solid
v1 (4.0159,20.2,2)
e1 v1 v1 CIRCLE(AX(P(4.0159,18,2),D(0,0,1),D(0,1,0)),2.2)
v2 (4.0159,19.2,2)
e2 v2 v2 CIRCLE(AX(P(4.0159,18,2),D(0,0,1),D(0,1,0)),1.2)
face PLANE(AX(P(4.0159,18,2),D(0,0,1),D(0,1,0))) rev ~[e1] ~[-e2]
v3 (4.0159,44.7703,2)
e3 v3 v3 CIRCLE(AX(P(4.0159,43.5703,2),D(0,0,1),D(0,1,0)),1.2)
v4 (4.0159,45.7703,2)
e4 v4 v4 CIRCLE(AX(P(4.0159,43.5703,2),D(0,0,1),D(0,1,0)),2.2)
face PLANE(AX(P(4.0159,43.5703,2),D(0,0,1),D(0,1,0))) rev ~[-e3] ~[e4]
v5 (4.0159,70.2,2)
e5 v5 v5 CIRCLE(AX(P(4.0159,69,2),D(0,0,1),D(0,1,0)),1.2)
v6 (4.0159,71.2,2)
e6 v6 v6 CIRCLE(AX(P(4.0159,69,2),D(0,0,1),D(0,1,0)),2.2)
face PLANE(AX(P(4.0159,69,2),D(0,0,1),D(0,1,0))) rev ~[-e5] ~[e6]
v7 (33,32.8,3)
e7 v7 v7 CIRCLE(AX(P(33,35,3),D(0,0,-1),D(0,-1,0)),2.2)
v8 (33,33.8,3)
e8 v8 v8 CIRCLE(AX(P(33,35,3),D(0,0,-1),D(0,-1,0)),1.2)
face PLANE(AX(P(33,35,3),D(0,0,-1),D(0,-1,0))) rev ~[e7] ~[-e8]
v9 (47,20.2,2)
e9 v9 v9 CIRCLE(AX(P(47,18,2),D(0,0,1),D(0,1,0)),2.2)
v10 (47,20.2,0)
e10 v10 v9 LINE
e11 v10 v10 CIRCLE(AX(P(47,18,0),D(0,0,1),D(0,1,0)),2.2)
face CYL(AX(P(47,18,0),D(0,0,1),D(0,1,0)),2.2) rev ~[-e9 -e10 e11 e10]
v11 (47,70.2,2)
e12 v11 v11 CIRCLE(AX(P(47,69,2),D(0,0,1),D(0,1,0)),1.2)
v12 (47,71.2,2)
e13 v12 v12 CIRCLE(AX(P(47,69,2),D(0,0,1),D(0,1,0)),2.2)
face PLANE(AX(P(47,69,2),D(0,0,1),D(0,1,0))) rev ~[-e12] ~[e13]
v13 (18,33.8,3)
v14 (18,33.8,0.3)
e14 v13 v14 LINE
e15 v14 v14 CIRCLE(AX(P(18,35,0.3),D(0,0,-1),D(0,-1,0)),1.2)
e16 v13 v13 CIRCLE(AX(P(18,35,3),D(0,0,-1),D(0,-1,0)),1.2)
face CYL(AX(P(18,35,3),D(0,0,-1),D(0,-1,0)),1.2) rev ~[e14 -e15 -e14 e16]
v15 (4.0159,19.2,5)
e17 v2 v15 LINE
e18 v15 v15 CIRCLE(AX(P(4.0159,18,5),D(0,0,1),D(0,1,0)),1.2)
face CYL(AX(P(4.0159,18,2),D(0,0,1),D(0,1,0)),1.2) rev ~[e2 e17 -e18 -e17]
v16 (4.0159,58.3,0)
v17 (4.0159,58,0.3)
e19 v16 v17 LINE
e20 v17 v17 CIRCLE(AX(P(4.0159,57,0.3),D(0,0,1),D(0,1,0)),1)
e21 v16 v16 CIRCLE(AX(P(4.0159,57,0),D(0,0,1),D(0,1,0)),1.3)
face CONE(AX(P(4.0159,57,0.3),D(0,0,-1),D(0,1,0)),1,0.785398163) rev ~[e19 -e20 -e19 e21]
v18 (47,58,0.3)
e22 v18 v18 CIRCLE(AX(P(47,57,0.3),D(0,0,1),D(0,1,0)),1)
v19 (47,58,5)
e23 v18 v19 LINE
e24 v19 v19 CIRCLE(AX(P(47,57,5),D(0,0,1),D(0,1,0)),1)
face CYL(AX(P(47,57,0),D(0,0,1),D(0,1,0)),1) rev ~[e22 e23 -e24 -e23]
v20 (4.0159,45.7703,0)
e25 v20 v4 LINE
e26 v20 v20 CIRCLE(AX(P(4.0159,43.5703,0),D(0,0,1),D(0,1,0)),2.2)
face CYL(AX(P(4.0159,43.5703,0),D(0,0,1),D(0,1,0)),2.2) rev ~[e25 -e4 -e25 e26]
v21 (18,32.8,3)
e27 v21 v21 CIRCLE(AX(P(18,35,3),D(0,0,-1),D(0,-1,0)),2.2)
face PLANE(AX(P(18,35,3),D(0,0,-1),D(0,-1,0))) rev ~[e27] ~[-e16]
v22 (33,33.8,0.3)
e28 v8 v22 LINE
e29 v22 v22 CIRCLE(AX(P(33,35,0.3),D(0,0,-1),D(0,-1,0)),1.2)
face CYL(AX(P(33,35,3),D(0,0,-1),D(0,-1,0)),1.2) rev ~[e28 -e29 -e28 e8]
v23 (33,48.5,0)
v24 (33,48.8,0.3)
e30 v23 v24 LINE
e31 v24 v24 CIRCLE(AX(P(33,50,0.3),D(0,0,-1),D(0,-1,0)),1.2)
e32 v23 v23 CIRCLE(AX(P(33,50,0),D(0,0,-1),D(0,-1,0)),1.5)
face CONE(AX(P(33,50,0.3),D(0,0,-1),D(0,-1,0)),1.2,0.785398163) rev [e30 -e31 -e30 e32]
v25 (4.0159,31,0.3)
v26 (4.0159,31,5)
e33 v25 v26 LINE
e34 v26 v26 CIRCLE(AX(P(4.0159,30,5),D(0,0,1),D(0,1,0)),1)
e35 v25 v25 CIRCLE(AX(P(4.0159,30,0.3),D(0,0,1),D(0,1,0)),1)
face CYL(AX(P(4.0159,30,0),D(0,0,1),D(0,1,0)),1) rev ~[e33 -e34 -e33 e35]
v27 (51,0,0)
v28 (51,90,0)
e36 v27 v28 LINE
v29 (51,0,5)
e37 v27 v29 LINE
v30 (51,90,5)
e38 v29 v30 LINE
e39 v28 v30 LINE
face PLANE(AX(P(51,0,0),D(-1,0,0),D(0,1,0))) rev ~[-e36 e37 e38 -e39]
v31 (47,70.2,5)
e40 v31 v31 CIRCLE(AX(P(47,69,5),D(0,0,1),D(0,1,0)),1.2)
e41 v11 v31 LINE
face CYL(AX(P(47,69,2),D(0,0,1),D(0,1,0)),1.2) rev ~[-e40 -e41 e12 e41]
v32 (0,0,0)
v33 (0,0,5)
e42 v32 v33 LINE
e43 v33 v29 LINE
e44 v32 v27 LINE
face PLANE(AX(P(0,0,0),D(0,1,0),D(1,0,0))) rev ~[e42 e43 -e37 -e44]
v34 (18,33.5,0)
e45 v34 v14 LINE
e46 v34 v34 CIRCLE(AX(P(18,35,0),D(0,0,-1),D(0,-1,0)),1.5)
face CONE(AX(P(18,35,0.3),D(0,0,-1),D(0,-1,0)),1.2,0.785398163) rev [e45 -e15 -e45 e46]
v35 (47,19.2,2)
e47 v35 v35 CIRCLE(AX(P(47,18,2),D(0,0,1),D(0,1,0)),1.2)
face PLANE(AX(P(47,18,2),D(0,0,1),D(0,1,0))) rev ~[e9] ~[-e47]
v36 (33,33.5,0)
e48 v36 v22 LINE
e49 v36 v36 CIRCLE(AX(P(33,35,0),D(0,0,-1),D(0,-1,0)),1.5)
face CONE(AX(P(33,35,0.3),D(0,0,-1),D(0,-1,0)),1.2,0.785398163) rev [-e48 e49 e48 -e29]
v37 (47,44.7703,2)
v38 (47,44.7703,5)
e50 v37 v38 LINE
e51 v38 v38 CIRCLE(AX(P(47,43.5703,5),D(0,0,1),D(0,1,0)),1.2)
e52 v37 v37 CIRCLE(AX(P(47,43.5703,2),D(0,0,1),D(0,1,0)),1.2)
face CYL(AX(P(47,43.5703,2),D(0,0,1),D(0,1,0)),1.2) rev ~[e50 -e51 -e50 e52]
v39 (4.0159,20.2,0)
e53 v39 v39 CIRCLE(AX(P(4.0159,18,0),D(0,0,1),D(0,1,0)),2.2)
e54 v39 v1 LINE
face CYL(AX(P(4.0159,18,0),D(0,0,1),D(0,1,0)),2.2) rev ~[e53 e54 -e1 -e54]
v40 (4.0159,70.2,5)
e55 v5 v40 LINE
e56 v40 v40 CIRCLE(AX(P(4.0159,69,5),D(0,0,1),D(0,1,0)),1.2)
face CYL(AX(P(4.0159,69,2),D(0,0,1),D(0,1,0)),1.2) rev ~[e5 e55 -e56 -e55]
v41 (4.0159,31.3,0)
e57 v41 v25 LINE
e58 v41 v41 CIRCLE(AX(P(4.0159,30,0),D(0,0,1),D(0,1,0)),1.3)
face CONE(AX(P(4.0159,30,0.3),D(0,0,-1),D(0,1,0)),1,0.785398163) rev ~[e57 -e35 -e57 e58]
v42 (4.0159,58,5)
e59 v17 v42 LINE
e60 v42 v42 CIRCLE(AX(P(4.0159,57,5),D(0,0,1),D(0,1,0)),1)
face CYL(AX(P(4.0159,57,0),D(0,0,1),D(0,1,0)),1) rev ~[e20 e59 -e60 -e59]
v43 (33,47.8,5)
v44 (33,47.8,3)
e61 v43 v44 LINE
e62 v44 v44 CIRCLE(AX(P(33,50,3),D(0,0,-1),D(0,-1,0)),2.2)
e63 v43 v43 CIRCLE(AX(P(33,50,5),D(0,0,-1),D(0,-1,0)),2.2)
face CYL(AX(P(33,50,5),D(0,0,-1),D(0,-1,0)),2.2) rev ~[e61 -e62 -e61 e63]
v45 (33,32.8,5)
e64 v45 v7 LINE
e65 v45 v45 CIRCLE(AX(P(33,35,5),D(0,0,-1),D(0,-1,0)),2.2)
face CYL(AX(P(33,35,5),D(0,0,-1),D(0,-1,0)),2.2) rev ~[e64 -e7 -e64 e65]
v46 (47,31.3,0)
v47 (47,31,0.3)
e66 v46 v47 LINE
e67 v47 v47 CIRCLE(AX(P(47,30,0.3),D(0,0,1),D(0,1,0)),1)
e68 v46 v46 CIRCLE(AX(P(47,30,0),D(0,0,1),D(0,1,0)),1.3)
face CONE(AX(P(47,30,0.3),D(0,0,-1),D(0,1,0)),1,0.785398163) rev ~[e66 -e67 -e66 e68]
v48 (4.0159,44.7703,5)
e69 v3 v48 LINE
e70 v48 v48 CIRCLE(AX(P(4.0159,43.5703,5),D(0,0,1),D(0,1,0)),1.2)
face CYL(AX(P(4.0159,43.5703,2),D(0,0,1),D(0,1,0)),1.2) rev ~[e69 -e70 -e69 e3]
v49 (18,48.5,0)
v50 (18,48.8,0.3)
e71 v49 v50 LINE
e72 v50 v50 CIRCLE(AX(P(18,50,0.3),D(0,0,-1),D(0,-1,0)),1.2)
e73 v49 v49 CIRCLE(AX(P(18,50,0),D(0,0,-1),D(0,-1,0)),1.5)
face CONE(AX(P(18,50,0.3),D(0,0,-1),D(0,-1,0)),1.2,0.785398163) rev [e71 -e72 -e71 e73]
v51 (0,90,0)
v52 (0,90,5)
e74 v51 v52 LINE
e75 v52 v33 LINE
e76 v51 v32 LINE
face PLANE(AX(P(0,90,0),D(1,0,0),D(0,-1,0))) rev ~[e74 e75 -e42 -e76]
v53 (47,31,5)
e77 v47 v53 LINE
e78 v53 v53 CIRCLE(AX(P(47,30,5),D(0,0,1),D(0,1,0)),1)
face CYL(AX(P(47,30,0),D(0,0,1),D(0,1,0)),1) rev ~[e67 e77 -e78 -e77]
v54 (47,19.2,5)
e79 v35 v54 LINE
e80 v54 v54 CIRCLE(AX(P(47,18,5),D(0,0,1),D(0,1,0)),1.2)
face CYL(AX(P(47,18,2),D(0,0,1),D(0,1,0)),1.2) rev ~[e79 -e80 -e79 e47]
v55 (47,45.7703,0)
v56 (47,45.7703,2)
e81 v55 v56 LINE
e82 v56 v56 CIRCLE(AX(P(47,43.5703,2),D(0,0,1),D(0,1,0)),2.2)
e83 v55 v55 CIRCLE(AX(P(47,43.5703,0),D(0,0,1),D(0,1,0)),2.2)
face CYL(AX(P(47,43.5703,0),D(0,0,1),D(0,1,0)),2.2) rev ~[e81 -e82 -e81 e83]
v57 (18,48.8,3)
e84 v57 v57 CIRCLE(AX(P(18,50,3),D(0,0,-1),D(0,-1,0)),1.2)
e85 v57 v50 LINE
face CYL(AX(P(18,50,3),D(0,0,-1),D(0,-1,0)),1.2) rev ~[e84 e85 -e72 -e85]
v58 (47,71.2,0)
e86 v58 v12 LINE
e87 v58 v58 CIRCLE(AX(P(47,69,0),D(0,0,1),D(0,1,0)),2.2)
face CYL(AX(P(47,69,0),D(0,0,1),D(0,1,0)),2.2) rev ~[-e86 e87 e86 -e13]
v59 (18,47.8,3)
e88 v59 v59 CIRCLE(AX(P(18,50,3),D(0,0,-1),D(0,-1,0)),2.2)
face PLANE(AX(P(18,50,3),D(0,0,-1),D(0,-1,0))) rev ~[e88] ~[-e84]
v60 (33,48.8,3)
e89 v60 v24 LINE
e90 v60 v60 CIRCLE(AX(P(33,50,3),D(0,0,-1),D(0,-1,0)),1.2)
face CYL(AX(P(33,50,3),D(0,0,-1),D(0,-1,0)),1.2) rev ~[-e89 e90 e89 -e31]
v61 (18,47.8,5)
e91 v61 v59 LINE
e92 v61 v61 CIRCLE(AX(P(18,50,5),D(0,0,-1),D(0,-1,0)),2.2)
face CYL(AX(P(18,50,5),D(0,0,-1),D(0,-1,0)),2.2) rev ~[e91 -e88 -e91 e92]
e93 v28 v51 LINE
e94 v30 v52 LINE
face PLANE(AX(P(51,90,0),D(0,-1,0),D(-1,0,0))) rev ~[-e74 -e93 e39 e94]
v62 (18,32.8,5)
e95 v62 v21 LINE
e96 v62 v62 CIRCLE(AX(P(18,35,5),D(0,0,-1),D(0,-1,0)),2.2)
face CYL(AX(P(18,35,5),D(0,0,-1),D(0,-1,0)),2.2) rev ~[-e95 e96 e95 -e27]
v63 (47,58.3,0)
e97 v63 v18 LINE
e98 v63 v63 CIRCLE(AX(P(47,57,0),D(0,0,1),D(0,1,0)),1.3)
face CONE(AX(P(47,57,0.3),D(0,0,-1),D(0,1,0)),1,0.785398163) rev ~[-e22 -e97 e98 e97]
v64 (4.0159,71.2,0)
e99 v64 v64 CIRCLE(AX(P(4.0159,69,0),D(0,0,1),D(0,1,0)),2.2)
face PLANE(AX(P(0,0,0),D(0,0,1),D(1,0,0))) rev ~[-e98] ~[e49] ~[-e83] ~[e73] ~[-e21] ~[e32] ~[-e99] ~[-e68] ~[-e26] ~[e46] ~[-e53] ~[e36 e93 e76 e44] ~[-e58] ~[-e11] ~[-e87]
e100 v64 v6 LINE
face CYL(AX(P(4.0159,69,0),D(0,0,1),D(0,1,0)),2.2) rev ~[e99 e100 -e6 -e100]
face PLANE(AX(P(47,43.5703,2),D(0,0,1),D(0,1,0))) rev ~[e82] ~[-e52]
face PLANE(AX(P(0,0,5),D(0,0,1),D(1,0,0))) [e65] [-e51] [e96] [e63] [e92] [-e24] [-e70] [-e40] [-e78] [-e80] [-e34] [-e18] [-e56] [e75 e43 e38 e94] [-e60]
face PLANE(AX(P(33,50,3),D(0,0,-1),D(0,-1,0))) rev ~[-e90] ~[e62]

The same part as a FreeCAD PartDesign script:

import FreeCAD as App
import Part
import Sketcher

V = App.Vector


def edges_at(feature, points):
    """Names of the edges that pass closest to the given points."""
    edges = feature.Shape.Edges
    near = lambda p: min(range(len(edges)), key=lambda i: edges[i].distToShape(Part.Vertex(*p))[0])
    return sorted({f"Edge{near(p) + 1}" for p in points})

doc = App.newDocument("Part")
body = doc.addObject("PartDesign::Body", "Body")

# Sketch on XY plane
sketch1 = body.newObject("Sketcher::SketchObject", "Sketch")
sketch1.AttachmentSupport = (doc.getObject("XY_Plane"), [""])
sketch1.MapMode = "FlatFace"
sketch1.addGeometry(Part.LineSegment(V(0, 90, 0), V(0, 0, 0)), False)
sketch1.addGeometry(Part.LineSegment(V(0, 0, 0), V(51, 0, 0)), False)
sketch1.addGeometry(Part.LineSegment(V(51, 0, 0), V(51, 90, 0)), False)
sketch1.addGeometry(Part.LineSegment(V(51, 90, 0), V(0, 90, 0)), False)
sketch1.addConstraint(Sketcher.Constraint("Coincident", 0, 2, 1, 1))
sketch1.addConstraint(Sketcher.Constraint("Coincident", 1, 2, 2, 1))
sketch1.addConstraint(Sketcher.Constraint("Coincident", 2, 2, 3, 1))
sketch1.addConstraint(Sketcher.Constraint("Coincident", 3, 2, 0, 1))
sketch1.addConstraint(Sketcher.Constraint("Vertical", 0))
sketch1.addConstraint(Sketcher.Constraint("Horizontal", 1))
sketch1.addConstraint(Sketcher.Constraint("Vertical", 2))
sketch1.addConstraint(Sketcher.Constraint("Horizontal", 3))
sketch1.addConstraint(Sketcher.Constraint("Coincident", 0, 2, -1, 1))
sketch1.addConstraint(Sketcher.Constraint("DistanceX", 1, 1, 1, 2, 51.0))
sketch1.addConstraint(Sketcher.Constraint("DistanceY", 0, 2, 0, 1, 90.0))
pad1 = body.newObject("PartDesign::Pad", "Pad")
pad1.Profile = sketch1
pad1.Length = 5

# Sketch on XY plane
sketch2 = body.newObject("Sketcher::SketchObject", "Sketch001")
sketch2.AttachmentSupport = (doc.getObject("XY_Plane"), [""])
sketch2.MapMode = "FlatFace"
sketch2.addGeometry(Part.Circle(V(4, 69, 0), V(0, 0, 1), 1.2), False)
sketch2.addGeometry(Part.Circle(V(4, 43.6, 0), V(0, 0, 1), 1.2), False)
sketch2.addGeometry(Part.Circle(V(4, 18, 0), V(0, 0, 1), 1.2), False)
sketch2.addGeometry(Part.Circle(V(47, 18, 0), V(0, 0, 1), 1.2), False)
sketch2.addGeometry(Part.Circle(V(47, 43.6, 0), V(0, 0, 1), 1.2), False)
sketch2.addGeometry(Part.Circle(V(47, 69, 0), V(0, 0, 1), 1.2), False)
sketch2.addConstraint(Sketcher.Constraint("Equal", 0, 1))
sketch2.addConstraint(Sketcher.Constraint("Equal", 1, 2))
sketch2.addConstraint(Sketcher.Constraint("Equal", 2, 3))
sketch2.addConstraint(Sketcher.Constraint("Equal", 3, 4))
sketch2.addConstraint(Sketcher.Constraint("Equal", 4, 5))
sketch2.addConstraint(Sketcher.Constraint("Horizontal", 2, 3, 3, 3))
sketch2.addConstraint(Sketcher.Constraint("Horizontal", 1, 3, 4, 3))
sketch2.addConstraint(Sketcher.Constraint("Horizontal", 0, 3, 5, 3))
sketch2.addConstraint(Sketcher.Constraint("Vertical", 0, 3, 1, 3))
sketch2.addConstraint(Sketcher.Constraint("Vertical", 1, 3, 2, 3))
sketch2.addConstraint(Sketcher.Constraint("Vertical", 3, 3, 4, 3))
sketch2.addConstraint(Sketcher.Constraint("Vertical", 4, 3, 5, 3))
sketch2.addConstraint(Sketcher.Constraint("Diameter", 0, 2.4))
sketch2.addConstraint(Sketcher.Constraint("DistanceY", -1, 1, 0, 3, 69.0))
sketch2.addConstraint(Sketcher.Constraint("DistanceY", -1, 1, 2, 3, 18.0))
sketch2.addConstraint(Sketcher.Constraint("DistanceX", -1, 1, 3, 3, 47.0))
sketch2.addConstraint(Sketcher.Constraint("DistanceX", -1, 1, 0, 3, 4.016))
sketch2.addConstraint(Sketcher.Constraint("DistanceY", -1, 1, 1, 3, 43.5703))
doc.recompute()
hole = body.newObject("PartDesign::Hole", "Hole")
hole.Profile = sketch2
hole.ThreadType = "None"
hole.Diameter = 2.4
hole.DepthType = "ThroughAll"
hole.HoleCutType = "Counterbore"
hole.HoleCutDiameter = 4.4
hole.HoleCutDepth = 2
hole.Reversed = True

# Sketch on XY plane
sketch3 = body.newObject("Sketcher::SketchObject", "Sketch002")
sketch3.AttachmentSupport = (doc.getObject("XY_Plane"), [""])
sketch3.MapMode = "FlatFace"
sketch3.AttachmentOffset = App.Placement(V(0, 0, 5), App.Rotation())
sketch3.addGeometry(Part.Circle(V(33, 50, 0), V(0, 0, 1), 1.2), False)
sketch3.addGeometry(Part.Circle(V(18, 50, 0), V(0, 0, 1), 1.2), False)
sketch3.addGeometry(Part.Circle(V(18, 35, 0), V(0, 0, 1), 1.2), False)
sketch3.addGeometry(Part.Circle(V(33, 35, 0), V(0, 0, 1), 1.2), False)
sketch3.addConstraint(Sketcher.Constraint("Equal", 0, 1))
sketch3.addConstraint(Sketcher.Constraint("Equal", 1, 2))
sketch3.addConstraint(Sketcher.Constraint("Equal", 2, 3))
sketch3.addConstraint(Sketcher.Constraint("Horizontal", 0, 3, 1, 3))
sketch3.addConstraint(Sketcher.Constraint("Horizontal", 2, 3, 3, 3))
sketch3.addConstraint(Sketcher.Constraint("Vertical", 1, 3, 2, 3))
sketch3.addConstraint(Sketcher.Constraint("Vertical", 0, 3, 3, 3))
sketch3.addConstraint(Sketcher.Constraint("Diameter", 0, 2.4))
sketch3.addConstraint(Sketcher.Constraint("DistanceX", -1, 1, 0, 3, 33.0))
sketch3.addConstraint(Sketcher.Constraint("DistanceY", -1, 1, 0, 3, 50.0))
sketch3.addConstraint(Sketcher.Constraint("DistanceX", -1, 1, 1, 3, 18.0))
sketch3.addConstraint(Sketcher.Constraint("DistanceY", -1, 1, 2, 3, 35.0))
doc.recompute()
hole2 = body.newObject("PartDesign::Hole", "Hole001")
hole2.Profile = sketch3
hole2.ThreadType = "None"
hole2.Diameter = 2.4
hole2.DepthType = "ThroughAll"
hole2.HoleCutType = "Counterbore"
hole2.HoleCutDiameter = 4.4
hole2.HoleCutDepth = 2
doc.recompute()

chamfer = body.newObject("PartDesign::Chamfer", "Chamfer")
chamfer.Base = (hole2, edges_at(hole2, [
    (18, 36.2, 0),
    (33, 36.2, 0),
    (18, 51.2, 0),
    (33, 51.2, 0),
]))
chamfer.Size = 0.3

# Sketch on XY plane
sketch4 = body.newObject("Sketcher::SketchObject", "Sketch003")
sketch4.AttachmentSupport = (doc.getObject("XY_Plane"), [""])
sketch4.MapMode = "FlatFace"
sketch4.addGeometry(Part.Circle(V(47, 57, 0), V(0, 0, 1), 1), False)
sketch4.addGeometry(Part.Circle(V(4, 57, 0), V(0, 0, 1), 1), False)
sketch4.addGeometry(Part.Circle(V(4, 30, 0), V(0, 0, 1), 1), False)
sketch4.addGeometry(Part.Circle(V(47, 30, 0), V(0, 0, 1), 1), False)
sketch4.addConstraint(Sketcher.Constraint("Equal", 0, 1))
sketch4.addConstraint(Sketcher.Constraint("Equal", 1, 2))
sketch4.addConstraint(Sketcher.Constraint("Equal", 2, 3))
sketch4.addConstraint(Sketcher.Constraint("Horizontal", 0, 3, 1, 3))
sketch4.addConstraint(Sketcher.Constraint("Horizontal", 2, 3, 3, 3))
sketch4.addConstraint(Sketcher.Constraint("Vertical", 1, 3, 2, 3))
sketch4.addConstraint(Sketcher.Constraint("Vertical", 0, 3, 3, 3))
sketch4.addConstraint(Sketcher.Constraint("Diameter", 0, 2.0))
sketch4.addConstraint(Sketcher.Constraint("DistanceX", -1, 1, 0, 3, 47.0))
sketch4.addConstraint(Sketcher.Constraint("DistanceY", -1, 1, 0, 3, 57.0))
sketch4.addConstraint(Sketcher.Constraint("DistanceY", -1, 1, 2, 3, 30.0))
sketch4.addConstraint(Sketcher.Constraint("DistanceX", -1, 1, 1, 3, 4.016))
doc.recompute()
hole3 = body.newObject("PartDesign::Hole", "Hole002")
hole3.Profile = sketch4
hole3.ThreadType = "None"
hole3.Diameter = 2
hole3.DepthType = "ThroughAll"
hole3.Reversed = True
doc.recompute()

chamfer2 = body.newObject("PartDesign::Chamfer", "Chamfer001")
chamfer2.Base = (hole3, edges_at(hole3, [
    (4.016, 29, 0),
    (47, 29, 0),
    (4.016, 56, 0),
    (47, 56, 0),
]))
chamfer2.Size = 0.3

doc.recompute()
